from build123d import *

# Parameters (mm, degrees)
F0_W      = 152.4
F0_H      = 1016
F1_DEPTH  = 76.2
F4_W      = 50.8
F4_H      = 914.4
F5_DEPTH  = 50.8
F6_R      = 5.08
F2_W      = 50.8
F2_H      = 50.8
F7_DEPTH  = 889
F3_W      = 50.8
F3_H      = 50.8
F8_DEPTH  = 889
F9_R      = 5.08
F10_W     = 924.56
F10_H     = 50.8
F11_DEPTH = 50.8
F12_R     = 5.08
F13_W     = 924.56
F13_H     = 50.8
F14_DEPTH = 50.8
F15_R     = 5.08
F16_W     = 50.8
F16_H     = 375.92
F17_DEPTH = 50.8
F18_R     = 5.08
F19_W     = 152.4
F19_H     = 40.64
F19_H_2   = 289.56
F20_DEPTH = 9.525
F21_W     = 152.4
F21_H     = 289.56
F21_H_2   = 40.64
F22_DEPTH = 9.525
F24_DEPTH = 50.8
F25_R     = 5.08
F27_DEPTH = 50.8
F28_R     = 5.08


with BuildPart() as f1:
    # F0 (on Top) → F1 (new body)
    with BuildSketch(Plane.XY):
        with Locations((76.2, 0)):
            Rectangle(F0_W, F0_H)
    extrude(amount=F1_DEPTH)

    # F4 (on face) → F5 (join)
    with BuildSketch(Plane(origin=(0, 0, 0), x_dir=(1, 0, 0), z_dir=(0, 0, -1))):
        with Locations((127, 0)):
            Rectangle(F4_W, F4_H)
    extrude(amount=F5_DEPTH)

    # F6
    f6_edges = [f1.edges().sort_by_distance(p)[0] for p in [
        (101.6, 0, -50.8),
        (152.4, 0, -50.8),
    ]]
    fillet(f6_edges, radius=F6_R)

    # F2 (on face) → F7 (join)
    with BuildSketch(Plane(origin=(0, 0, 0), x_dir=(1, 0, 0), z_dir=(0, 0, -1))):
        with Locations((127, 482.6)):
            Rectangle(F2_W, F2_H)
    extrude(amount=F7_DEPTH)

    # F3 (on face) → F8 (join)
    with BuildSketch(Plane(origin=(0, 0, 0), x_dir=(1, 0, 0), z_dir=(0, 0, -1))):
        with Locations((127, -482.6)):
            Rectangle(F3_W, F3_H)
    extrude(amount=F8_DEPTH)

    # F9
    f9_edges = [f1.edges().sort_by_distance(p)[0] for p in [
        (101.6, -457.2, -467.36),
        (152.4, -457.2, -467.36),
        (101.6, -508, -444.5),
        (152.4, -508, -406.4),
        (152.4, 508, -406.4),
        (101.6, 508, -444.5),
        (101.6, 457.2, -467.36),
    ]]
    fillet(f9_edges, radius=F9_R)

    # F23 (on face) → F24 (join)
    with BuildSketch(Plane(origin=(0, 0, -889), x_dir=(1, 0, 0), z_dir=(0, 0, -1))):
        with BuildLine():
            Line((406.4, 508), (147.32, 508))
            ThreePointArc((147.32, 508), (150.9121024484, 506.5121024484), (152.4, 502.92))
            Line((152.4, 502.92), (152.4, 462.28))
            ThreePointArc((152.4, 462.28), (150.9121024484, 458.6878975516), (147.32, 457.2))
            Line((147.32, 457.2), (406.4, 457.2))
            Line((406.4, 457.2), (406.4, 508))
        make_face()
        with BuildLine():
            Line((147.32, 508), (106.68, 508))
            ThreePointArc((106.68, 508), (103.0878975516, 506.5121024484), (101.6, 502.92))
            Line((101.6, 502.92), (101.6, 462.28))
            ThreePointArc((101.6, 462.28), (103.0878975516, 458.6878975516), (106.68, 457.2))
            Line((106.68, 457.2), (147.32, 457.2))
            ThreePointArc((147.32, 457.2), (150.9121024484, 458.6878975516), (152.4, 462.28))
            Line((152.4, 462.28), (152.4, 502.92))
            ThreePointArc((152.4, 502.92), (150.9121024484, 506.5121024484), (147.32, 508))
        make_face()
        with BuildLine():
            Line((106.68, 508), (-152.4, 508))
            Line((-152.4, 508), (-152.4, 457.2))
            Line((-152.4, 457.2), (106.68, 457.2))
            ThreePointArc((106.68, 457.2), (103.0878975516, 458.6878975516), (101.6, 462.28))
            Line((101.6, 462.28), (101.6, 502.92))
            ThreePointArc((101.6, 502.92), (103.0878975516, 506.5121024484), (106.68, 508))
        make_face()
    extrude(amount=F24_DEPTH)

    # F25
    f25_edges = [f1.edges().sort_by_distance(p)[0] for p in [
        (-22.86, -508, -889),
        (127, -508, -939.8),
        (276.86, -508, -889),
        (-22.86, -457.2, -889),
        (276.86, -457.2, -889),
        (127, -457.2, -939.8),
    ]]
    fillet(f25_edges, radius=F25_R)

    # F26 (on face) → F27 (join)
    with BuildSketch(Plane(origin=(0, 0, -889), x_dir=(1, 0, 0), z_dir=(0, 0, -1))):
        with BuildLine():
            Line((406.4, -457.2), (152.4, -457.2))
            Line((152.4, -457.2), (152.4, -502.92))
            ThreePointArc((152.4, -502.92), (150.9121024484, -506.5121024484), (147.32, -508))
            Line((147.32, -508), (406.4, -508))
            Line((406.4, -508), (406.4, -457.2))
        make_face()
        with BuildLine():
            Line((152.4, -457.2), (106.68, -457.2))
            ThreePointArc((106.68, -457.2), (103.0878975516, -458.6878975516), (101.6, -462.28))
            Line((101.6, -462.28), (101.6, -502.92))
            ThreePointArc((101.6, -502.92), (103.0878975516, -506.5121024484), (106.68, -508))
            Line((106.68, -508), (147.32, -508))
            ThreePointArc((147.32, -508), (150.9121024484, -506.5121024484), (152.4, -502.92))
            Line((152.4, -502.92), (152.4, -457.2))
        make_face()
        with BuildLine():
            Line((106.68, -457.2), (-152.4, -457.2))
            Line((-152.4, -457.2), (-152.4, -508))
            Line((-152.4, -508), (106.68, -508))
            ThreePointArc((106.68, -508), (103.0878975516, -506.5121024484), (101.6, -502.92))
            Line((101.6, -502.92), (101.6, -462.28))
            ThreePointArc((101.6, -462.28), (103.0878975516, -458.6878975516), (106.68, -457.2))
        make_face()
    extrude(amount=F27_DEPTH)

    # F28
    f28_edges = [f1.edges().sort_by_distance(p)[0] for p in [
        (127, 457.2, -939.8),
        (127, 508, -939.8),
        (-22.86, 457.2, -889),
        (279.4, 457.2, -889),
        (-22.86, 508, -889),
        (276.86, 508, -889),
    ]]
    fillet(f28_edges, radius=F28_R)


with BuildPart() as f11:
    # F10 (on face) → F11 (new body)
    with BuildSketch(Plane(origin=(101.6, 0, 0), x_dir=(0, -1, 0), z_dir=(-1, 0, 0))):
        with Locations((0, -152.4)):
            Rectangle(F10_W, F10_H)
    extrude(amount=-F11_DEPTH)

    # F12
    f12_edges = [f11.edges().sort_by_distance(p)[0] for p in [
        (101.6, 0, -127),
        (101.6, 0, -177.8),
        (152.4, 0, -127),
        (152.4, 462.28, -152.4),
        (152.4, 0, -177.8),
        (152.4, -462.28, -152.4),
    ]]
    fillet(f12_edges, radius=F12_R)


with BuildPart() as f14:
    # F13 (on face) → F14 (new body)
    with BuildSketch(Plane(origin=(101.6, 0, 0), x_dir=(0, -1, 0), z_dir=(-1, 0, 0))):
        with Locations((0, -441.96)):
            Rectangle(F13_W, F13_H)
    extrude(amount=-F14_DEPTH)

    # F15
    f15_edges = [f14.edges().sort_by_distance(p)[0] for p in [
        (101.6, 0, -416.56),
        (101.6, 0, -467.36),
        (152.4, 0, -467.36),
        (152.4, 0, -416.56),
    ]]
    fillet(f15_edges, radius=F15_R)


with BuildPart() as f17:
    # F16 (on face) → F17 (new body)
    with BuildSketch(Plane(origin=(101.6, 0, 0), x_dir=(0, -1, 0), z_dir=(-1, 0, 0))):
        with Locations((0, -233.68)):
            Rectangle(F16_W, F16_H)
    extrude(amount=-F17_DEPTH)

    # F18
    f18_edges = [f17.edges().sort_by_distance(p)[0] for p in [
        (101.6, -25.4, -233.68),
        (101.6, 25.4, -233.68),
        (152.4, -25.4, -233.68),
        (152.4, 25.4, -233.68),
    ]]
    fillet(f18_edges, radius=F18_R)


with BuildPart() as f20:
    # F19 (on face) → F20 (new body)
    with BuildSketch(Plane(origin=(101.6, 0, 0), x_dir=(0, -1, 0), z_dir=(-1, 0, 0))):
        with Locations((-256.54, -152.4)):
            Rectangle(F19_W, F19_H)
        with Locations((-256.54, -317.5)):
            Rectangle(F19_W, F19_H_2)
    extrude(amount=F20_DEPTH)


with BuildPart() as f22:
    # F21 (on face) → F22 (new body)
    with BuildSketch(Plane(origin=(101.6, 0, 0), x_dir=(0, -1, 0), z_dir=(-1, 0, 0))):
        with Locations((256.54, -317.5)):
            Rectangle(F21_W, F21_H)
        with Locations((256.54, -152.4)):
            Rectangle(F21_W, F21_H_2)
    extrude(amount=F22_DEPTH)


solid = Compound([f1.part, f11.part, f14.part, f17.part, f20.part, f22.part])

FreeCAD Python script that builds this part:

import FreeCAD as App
import Part
import Sketcher
Q = App.Units.Quantity


def edges_at(feature, points):
    """Names of the edges that pass closest to the given points."""
    edges = feature.Shape.Edges
    near = lambda p: min(range(len(edges)), key=lambda i: edges[i].distToShape(Part.Vertex(*p))[0])
    return sorted({f"Edge{near(p) + 1}" for p in points})


def add_polygon(sketch, points):
    """Adds a closed chain of lines whose ends are joined by coincident constraints."""
    first, n = sketch.GeometryCount, len(points)
    for a, b in zip(points, points[1:] + points[:1]):
        sketch.addGeometry(Part.LineSegment(App.Vector(*a, 0), App.Vector(*b, 0)), False)
    for i in range(n):
        sketch.addConstraint(Sketcher.Constraint("Coincident", first + i, 2, first + (i + 1) % n, 1))

doc = App.newDocument("Part")
body = doc.addObject("PartDesign::Body", "Body")

# Sketch on XY plane
sketch1 = body.newObject("Sketcher::SketchObject", "Sketch")
sketch1.AttachmentSupport = (doc.getObject("XY_Plane"), [""])
sketch1.MapMode = "FlatFace"
add_polygon(sketch1, [(0, 508), (0, -508), (152, -508), (152, 508)])  # lines 0-3
sketch1.addConstraint([
    Sketcher.Constraint("Vertical", 0),
    Sketcher.Constraint("Horizontal", 1),
    Sketcher.Constraint("Vertical", 2),
    Sketcher.Constraint("Horizontal", 3),
    Sketcher.Constraint("Symmetric", 0, 2, 3, 2, -1, 1),
    Sketcher.Constraint("DistanceX", 1, 1, 1, 2, Q("6 in")),
    Sketcher.Constraint("DistanceY", 0, 2, 0, 1, Q("40 in")),
])
pad1 = body.newObject("PartDesign::Pad", "Pad")
pad1.Profile = sketch1
pad1.Length = Q("3 in")

# Sketch on XY plane
sketch2 = body.newObject("Sketcher::SketchObject", "Sketch001")
sketch2.AttachmentSupport = (doc.getObject("XY_Plane"), [""])
sketch2.MapMode = "FlatFace"
add_polygon(sketch2, [(102, -457), (102, 457), (152, 457), (152, -457)])  # lines 0-3
sketch2.addConstraint([
    Sketcher.Constraint("Vertical", 0),
    Sketcher.Constraint("Horizontal", 1),
    Sketcher.Constraint("Vertical", 2),
    Sketcher.Constraint("Horizontal", 3),
    Sketcher.Constraint("DistanceX", 1, 1, 1, 2, Q("2 in")),
    Sketcher.Constraint("DistanceY", 0, 1, 0, 2, Q("36 in")),
    Sketcher.Constraint("DistanceX", -1, 1, 0, 2, Q("4 in")),
    Sketcher.Constraint("DistanceY", -1, 1, 0, 2, Q("18 in")),
])
pad2 = body.newObject("PartDesign::Pad", "Pad001")
pad2.Profile = sketch2
pad2.Length = Q("2 in")
pad2.Reversed = True
doc.recompute()

fillet = body.newObject("PartDesign::Fillet", "Fillet")
fillet.Base = (pad2, edges_at(pad2, [(101.6, 0, -50.8), (152.4, 0, -50.8)]))
fillet.Radius = Q("0.2 in")

# Sketch on XY plane
sketch3 = body.newObject("Sketcher::SketchObject", "Sketch002")
sketch3.AttachmentSupport = (doc.getObject("XY_Plane"), [""])
sketch3.MapMode = "FlatFace"
add_polygon(sketch3, [(102, -508), (102, -457), (152, -457), (152, -508)])  # lines 0-3
sketch3.addConstraint([
    Sketcher.Constraint("Vertical", 0),
    Sketcher.Constraint("Horizontal", 1),
    Sketcher.Constraint("Vertical", 2),
    Sketcher.Constraint("Horizontal", 3),
    Sketcher.Constraint("Equal", 3, 0),
    Sketcher.Constraint("DistanceX", 1, 1, 1, 2, Q("2 in")),
    Sketcher.Constraint("DistanceX", -1, 1, 0, 2, Q("4 in")),
    Sketcher.Constraint("DistanceY", 0, 2, -1, 1, Q("18 in")),
])
pad3 = body.newObject("PartDesign::Pad", "Pad002")
pad3.Profile = sketch3
pad3.Length = Q("35 in")
pad3.Reversed = True

# Sketch on XY plane
sketch4 = body.newObject("Sketcher::SketchObject", "Sketch003")
sketch4.AttachmentSupport = (doc.getObject("XY_Plane"), [""])
sketch4.MapMode = "FlatFace"
add_polygon(sketch4, [(102, 457), (102, 508), (152, 508), (152, 457)])  # lines 0-3
sketch4.addConstraint([
    Sketcher.Constraint("Vertical", 0),
    Sketcher.Constraint("Horizontal", 1),
    Sketcher.Constraint("Vertical", 2),
    Sketcher.Constraint("Horizontal", 3),
    Sketcher.Constraint("Equal", 3, 0),
    Sketcher.Constraint("DistanceX", 1, 1, 1, 2, Q("2 in")),
    Sketcher.Constraint("DistanceX", -1, 1, 0, 2, Q("4 in")),
    Sketcher.Constraint("DistanceY", -1, 1, 0, 2, Q("20 in")),
])
pad4 = body.newObject("PartDesign::Pad", "Pad003")
pad4.Profile = sketch4
pad4.Length = Q("35 in")
pad4.Reversed = True
doc.recompute()

fillet2 = body.newObject("PartDesign::Fillet", "Fillet001")
fillet2.Base = (pad4, edges_at(pad4, [
    (101.6, -457.2, -467.36),
    (152.4, -457.2, -467.36),
    (101.6, -508, -444.5),
    (152.4, -508, -406.4),
    (152.4, 508, -406.4),
    (101.6, 508, -444.5),
    (101.6, 457.2, -467.36),
]))
fillet2.Radius = Q("0.2 in")

# Sketch on XY plane
sketch5 = body.newObject("Sketcher::SketchObject", "Sketch004")
sketch5.AttachmentSupport = (doc.getObject("XY_Plane"), [""])
sketch5.MapMode = "FlatFace"
sketch5.AttachmentOffset = App.Placement(App.Vector(0, 0, -35 * 25.4), App.Rotation())
add_polygon(sketch5, [(406, -508), (-152, -508), (-152, -457), (406, -457)])  # lines 0-3
sketch5.addConstraint([
    Sketcher.Constraint("Horizontal", 0),
    Sketcher.Constraint("Vertical", 1),
    Sketcher.Constraint("Horizontal", 2),
    Sketcher.Constraint("Vertical", 3),
    Sketcher.Constraint("DistanceX", 0, 2, 0, 1, Q("22 in")),
    Sketcher.Constraint("DistanceY", 1, 1, 1, 2, Q("2 in")),
    Sketcher.Constraint("DistanceX", 0, 2, -1, 1, Q("6 in")),
    Sketcher.Constraint("DistanceY", 0, 2, -1, 1, Q("20 in")),
])
pad5 = body.newObject("PartDesign::Pad", "Pad004")
pad5.Profile = sketch5
pad5.Length = Q("2 in")
pad5.Reversed = True
doc.recompute()

fillet3 = body.newObject("PartDesign::Fillet", "Fillet002")
fillet3.Base = (pad5, edges_at(pad5, [
    (-22.86, -508, -889),
    (127, -508, -939.8),
    (276.86, -508, -889),
    (-22.86, -457.2, -889),
    (276.86, -457.2, -889),
    (127, -457.2, -939.8),
]))
fillet3.Radius = Q("0.2 in")

# Sketch on XY plane
sketch6 = body.newObject("Sketcher::SketchObject", "Sketch005")
sketch6.AttachmentSupport = (doc.getObject("XY_Plane"), [""])
sketch6.MapMode = "FlatFace"
sketch6.AttachmentOffset = App.Placement(App.Vector(0, 0, -35 * 25.4), App.Rotation())
add_polygon(sketch6, [(406, 457), (-152, 457), (-152, 508), (406, 508)])  # lines 0-3
sketch6.addConstraint([
    Sketcher.Constraint("Horizontal", 0),
    Sketcher.Constraint("Vertical", 1),
    Sketcher.Constraint("Horizontal", 2),
    Sketcher.Constraint("Vertical", 3),
    Sketcher.Constraint("DistanceX", 0, 2, 0, 1, Q("22 in")),
    Sketcher.Constraint("DistanceY", 1, 1, 1, 2, Q("2 in")),
    Sketcher.Constraint("DistanceX", 0, 2, -1, 1, Q("6 in")),
    Sketcher.Constraint("DistanceY", -1, 1, 0, 2, Q("18 in")),
])
pad6 = body.newObject("PartDesign::Pad", "Pad005")
pad6.Profile = sketch6
pad6.Length = Q("2 in")
pad6.Reversed = True
doc.recompute()

fillet4 = body.newObject("PartDesign::Fillet", "Fillet003")
fillet4.Base = (pad6, edges_at(pad6, [
    (127, 457.2, -939.8),
    (127, 508, -939.8),
    (-22.86, 457.2, -889),
    (279.4, 457.2, -889),
    (-22.86, 508, -889),
    (276.86, 508, -889),
]))
fillet4.Radius = Q("0.2 in")
body2 = doc.addObject("PartDesign::Body", "Body001")

# Sketch on YZ plane
sketch7 = body2.newObject("Sketcher::SketchObject", "Sketch006")
sketch7.AttachmentSupport = (doc.getObject("YZ_Plane001"), [""])
sketch7.MapMode = "FlatFace"
sketch7.AttachmentOffset = App.Placement(App.Vector(0, 0, 4 * 25.4), App.Rotation())
add_polygon(sketch7, [(462, -127), (462, -178), (-462, -178), (-462, -127)])  # lines 0-3
sketch7.addConstraint([
    Sketcher.Constraint("Vertical", 0),
    Sketcher.Constraint("Horizontal", 1),
    Sketcher.Constraint("Vertical", 2),
    Sketcher.Constraint("Horizontal", 3),
    Sketcher.Constraint("DistanceY", 0, 2, 0, 1, Q("2 in")),
    Sketcher.Constraint("DistanceX", 1, 2, 1, 1, Q("36.4 in")),
    Sketcher.Constraint("DistanceY", 0, 2, -1, 1, Q("7 in")),
    Sketcher.Constraint("DistanceX", -1, 1, 0, 2, Q("18.2 in")),
])
pad7 = body2.newObject("PartDesign::Pad", "Pad006")
pad7.Profile = sketch7
pad7.Length = Q("2 in")
doc.recompute()

fillet5 = body2.newObject("PartDesign::Fillet", "Fillet004")
fillet5.Base = (pad7, edges_at(pad7, [
    (101.6, 0, -127),
    (101.6, 0, -177.8),
    (152.4, 0, -127),
    (152.4, 462.28, -152.4),
    (152.4, 0, -177.8),
    (152.4, -462.28, -152.4),
]))
fillet5.Radius = Q("0.2 in")
body3 = doc.addObject("PartDesign::Body", "Body002")

# Sketch on YZ plane
sketch8 = body3.newObject("Sketcher::SketchObject", "Sketch007")
sketch8.AttachmentSupport = (doc.getObject("YZ_Plane002"), [""])
sketch8.MapMode = "FlatFace"
sketch8.AttachmentOffset = App.Placement(App.Vector(0, 0, 4 * 25.4), App.Rotation())
add_polygon(sketch8, [(462, -417), (462, -467), (-462, -467), (-462, -417)])  # lines 0-3
sketch8.addConstraint([
    Sketcher.Constraint("Vertical", 0),
    Sketcher.Constraint("Horizontal", 1),
    Sketcher.Constraint("Vertical", 2),
    Sketcher.Constraint("Horizontal", 3),
    Sketcher.Constraint("DistanceY", 0, 2, 0, 1, Q("2 in")),
    Sketcher.Constraint("DistanceX", 1, 2, 1, 1, Q("36.4 in")),
    Sketcher.Constraint("DistanceX", -1, 1, 0, 2, Q("18.2 in")),
    Sketcher.Constraint("DistanceY", 0, 2, -1, 1, Q("18.4 in")),
])
pad8 = body3.newObject("PartDesign::Pad", "Pad007")
pad8.Profile = sketch8
pad8.Length = Q("2 in")
doc.recompute()

fillet6 = body3.newObject("PartDesign::Fillet", "Fillet005")
fillet6.Base = (pad8, edges_at(pad8, [
    (101.6, 0, -416.56),
    (101.6, 0, -467.36),
    (152.4, 0, -467.36),
    (152.4, 0, -416.56),
]))
fillet6.Radius = Q("0.2 in")
body4 = doc.addObject("PartDesign::Body", "Body003")

# Sketch on YZ plane
sketch9 = body4.newObject("Sketcher::SketchObject", "Sketch008")
sketch9.AttachmentSupport = (doc.getObject("YZ_Plane003"), [""])
sketch9.MapMode = "FlatFace"
sketch9.AttachmentOffset = App.Placement(App.Vector(0, 0, 4 * 25.4), App.Rotation())
add_polygon(sketch9, [(25, -46), (25, -422), (-25, -422), (-25, -46)])  # lines 0-3
sketch9.addConstraint([
    Sketcher.Constraint("Vertical", 0),
    Sketcher.Constraint("Horizontal", 1),
    Sketcher.Constraint("Vertical", 2),
    Sketcher.Constraint("Horizontal", 3),
    Sketcher.Constraint("DistanceX", 1, 2, 1, 1, Q("2 in")),
    Sketcher.Constraint("DistanceY", 0, 2, 0, 1, Q("14.8 in")),
    Sketcher.Constraint("DistanceX", -1, 1, 0, 2, Q("1 in")),
    Sketcher.Constraint("DistanceY", 0, 2, -1, 1, Q("16.6 in")),
])
pad9 = body4.newObject("PartDesign::Pad", "Pad008")
pad9.Profile = sketch9
pad9.Length = Q("2 in")
doc.recompute()

fillet7 = body4.newObject("PartDesign::Fillet", "Fillet006")
fillet7.Base = (pad9, edges_at(pad9, [
    (101.6, -25.4, -233.68),
    (101.6, 25.4, -233.68),
    (152.4, -25.4, -233.68),
    (152.4, 25.4, -233.68),
]))
fillet7.Radius = Q("0.2 in")
body5 = doc.addObject("PartDesign::Body", "Body004")

# Sketch on YZ plane
sketch10 = body5.newObject("Sketcher::SketchObject", "Sketch009")
sketch10.AttachmentSupport = (doc.getObject("YZ_Plane004"), [""])
sketch10.MapMode = "FlatFace"
sketch10.AttachmentOffset = App.Placement(App.Vector(0, 0, 4 * 25.4), App.Rotation())
add_polygon(sketch10, [(333, -132), (333, -462), (180, -462), (180, -132)])  # lines 0-3
sketch10.addConstraint([
    Sketcher.Constraint("Vertical", 0),
    Sketcher.Constraint("Horizontal", 1),
    Sketcher.Constraint("Vertical", 2),
    Sketcher.Constraint("Horizontal", 3),
    Sketcher.Constraint("DistanceX", 1, 2, 1, 1, Q("6 in")),
    Sketcher.Constraint("DistanceY", 0, 2, 0, 1, Q("13 in")),
    Sketcher.Constraint("DistanceX", -1, 1, 0, 2, Q("13.1 in")),
    Sketcher.Constraint("DistanceY", 0, 2, -1, 1, Q("18.2 in")),
])
pad10 = body5.newObject("PartDesign::Pad", "Pad009")
pad10.Profile = sketch10
pad10.Length = Q("0.375 in")
pad10.Reversed = True
body6 = doc.addObject("PartDesign::Body", "Body005")

# Sketch on YZ plane
sketch11 = body6.newObject("Sketcher::SketchObject", "Sketch010")
sketch11.AttachmentSupport = (doc.getObject("YZ_Plane005"), [""])
sketch11.MapMode = "FlatFace"
sketch11.AttachmentOffset = App.Placement(App.Vector(0, 0, 4 * 25.4), App.Rotation())
add_polygon(sketch11, [(-180, -462), (-333, -462), (-333, -132), (-180, -132)])  # lines 0-3
sketch11.addConstraint([
    Sketcher.Constraint("Horizontal", 0),
    Sketcher.Constraint("Vertical", 1),
    Sketcher.Constraint("Horizontal", 2),
    Sketcher.Constraint("Vertical", 3),
    Sketcher.Constraint("DistanceX", 0, 2, 0, 1, Q("6 in")),
    Sketcher.Constraint("DistanceY", 1, 1, 1, 2, Q("13 in")),
    Sketcher.Constraint("DistanceX", 0, 2, -1, 1, Q("13.1 in")),
    Sketcher.Constraint("DistanceY", 0, 2, -1, 1, Q("18.2 in")),
])
pad11 = body6.newObject("PartDesign::Pad", "Pad010")
pad11.Profile = sketch11
pad11.Length = Q("0.375 in")
pad11.Reversed = True

doc.recompute()
